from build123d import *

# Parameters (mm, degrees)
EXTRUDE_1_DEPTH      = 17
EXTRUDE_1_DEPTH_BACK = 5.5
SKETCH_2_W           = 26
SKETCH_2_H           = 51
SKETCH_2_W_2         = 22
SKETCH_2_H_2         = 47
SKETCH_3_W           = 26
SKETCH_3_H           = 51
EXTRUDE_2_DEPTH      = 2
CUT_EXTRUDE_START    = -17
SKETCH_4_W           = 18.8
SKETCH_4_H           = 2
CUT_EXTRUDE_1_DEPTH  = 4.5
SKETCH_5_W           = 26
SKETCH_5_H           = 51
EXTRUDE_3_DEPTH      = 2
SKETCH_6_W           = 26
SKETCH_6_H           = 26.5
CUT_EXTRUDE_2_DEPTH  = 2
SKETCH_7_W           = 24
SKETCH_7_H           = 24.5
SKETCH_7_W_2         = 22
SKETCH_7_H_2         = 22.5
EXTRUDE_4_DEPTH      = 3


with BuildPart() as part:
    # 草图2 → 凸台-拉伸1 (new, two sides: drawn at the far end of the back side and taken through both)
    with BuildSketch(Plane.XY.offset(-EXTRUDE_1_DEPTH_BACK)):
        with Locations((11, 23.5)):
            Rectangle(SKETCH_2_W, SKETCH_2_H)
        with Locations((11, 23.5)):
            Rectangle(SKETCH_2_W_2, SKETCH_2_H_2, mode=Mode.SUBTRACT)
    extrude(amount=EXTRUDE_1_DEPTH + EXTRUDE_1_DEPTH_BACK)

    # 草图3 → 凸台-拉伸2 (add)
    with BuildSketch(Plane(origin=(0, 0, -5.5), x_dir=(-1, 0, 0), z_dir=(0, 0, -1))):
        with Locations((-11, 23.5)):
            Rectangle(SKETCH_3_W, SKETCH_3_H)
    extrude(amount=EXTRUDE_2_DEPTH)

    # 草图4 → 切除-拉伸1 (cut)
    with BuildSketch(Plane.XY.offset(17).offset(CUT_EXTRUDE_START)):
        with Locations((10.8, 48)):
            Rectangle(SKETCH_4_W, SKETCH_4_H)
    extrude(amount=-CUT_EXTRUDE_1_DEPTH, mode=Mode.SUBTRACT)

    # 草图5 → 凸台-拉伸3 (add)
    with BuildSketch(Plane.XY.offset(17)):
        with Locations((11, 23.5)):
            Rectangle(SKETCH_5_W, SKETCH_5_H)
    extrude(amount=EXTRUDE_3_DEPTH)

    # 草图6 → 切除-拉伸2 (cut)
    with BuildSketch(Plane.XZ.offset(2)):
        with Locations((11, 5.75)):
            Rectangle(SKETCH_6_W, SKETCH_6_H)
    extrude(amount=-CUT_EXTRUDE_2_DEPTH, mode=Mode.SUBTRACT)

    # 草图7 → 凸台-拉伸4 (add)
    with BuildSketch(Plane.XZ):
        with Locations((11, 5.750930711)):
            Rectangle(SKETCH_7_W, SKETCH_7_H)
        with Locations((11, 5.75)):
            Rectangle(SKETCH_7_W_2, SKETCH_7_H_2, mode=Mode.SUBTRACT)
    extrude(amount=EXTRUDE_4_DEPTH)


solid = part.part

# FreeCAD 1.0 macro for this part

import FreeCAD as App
import Part
import Sketcher
from FreeCAD import Vector
Q = App.Units.Quantity


def add_polygon(sketch, points):
    """Adds a closed chain of lines whose ends are joined by coincident constraints."""
    first, n = sketch.GeometryCount, len(points)
    for a, b in zip(points, points[1:] + points[:1]):
        sketch.addGeometry(Part.LineSegment(App.Vector(*a, 0), App.Vector(*b, 0)), False)
    for i in range(n):
        sketch.addConstraint(Sketcher.Constraint("Coincident", first + i, 2, first + (i + 1) % n, 1))

doc = App.newDocument("Part")
params = doc.addObject("Spreadsheet::Sheet", "Params")
for row, (alias, value) in enumerate([
    ("sketch1_width", "26 mm"),
    ("sketch1_width2", "22 mm"),
    ("sketch1_height", "51 mm"),
    ("sketch1_height2", "47 mm"),
    ("pad1_length", "17 mm"),
    ("pad1_length2", "5.5 mm"),
    ("sketch2_width", "26 mm"),
    ("sketch2_height", "51 mm"),
    ("pad2_length", "2 mm"),
    ("sketch3_height", "2 mm"),
    ("sketch3_width", "18.8 mm"),
    ("pocket1_length", "4.5 mm"),
    ("sketch4_width", "26 mm"),
    ("sketch4_height", "51 mm"),
    ("pad3_length", "2 mm"),
    ("sketch5_width", "26 mm"),
    ("sketch5_height", "26.5 mm"),
    ("pocket2_length", "2 mm"),
    ("sketch6_width", "24 mm"),
    ("sketch6_width2", "22 mm"),
    ("sketch6_height", "24.5 mm"),
    ("sketch6_height2", "22.5 mm"),
    ("pad4_length", "3 mm"),
], start=1):
    params.set(f"A{row}", alias)
    params.set(f"B{row}", "=" + value)
    params.setAlias(f"B{row}", alias)

body = doc.addObject("PartDesign::Body", "Body")

# Sketch on XY plane
sketch1 = body.newObject("Sketcher::SketchObject", "Sketch")
sketch1.AttachmentSupport = (doc.getObject("XY_Plane"), [""])
sketch1.MapMode = "FlatFace"
add_polygon(sketch1, [(-2, 49), (-2, -2), (24, -2), (24, 49)])  # lines 0-3
add_polygon(sketch1, [(22, 0), (0, 0), (0, 47), (22, 47)])  # lines 4-7
sketch1.addConstraint(Sketcher.Constraint("Vertical", 0))
sketch1.addConstraint(Sketcher.Constraint("Horizontal", 1))
sketch1.addConstraint(Sketcher.Constraint("Vertical", 2))
sketch1.addConstraint(Sketcher.Constraint("Horizontal", 3))
sketch1.addConstraint(Sketcher.Constraint("Horizontal", 4))
sketch1.addConstraint(Sketcher.Constraint("Vertical", 5))
sketch1.addConstraint(Sketcher.Constraint("Horizontal", 6))
sketch1.addConstraint(Sketcher.Constraint("Vertical", 7))
sketch1.addConstraint(Sketcher.Constraint("Coincident", 4, 2, -1, 1))
sketch1.addConstraint(Sketcher.Constraint("DistanceX", 1, 1, 1, 2, Q("26 mm")))
sketch1.addConstraint(Sketcher.Constraint("DistanceX", 4, 2, 4, 1, Q("22 mm")))
sketch1.addConstraint(Sketcher.Constraint("DistanceY", 0, 2, 0, 1, Q("51 mm")))
sketch1.addConstraint(Sketcher.Constraint("DistanceY", 5, 1, 5, 2, Q("47 mm")))
sketch1.addConstraint(Sketcher.Constraint("DistanceX", 0, 2, -1, 1, Q("2 mm")))
sketch1.addConstraint(Sketcher.Constraint("DistanceY", 0, 2, -1, 1, Q("2 mm")))
sketch1.setExpression("Constraints[17]", "Params.sketch1_width")
sketch1.setExpression("Constraints[18]", "Params.sketch1_width2")
sketch1.setExpression("Constraints[19]", "Params.sketch1_height")
sketch1.setExpression("Constraints[20]", "Params.sketch1_height2")
pad1 = body.newObject("PartDesign::Pad", "Pad")
pad1.Profile = sketch1
pad1.Type = "TwoLengths"
pad1.setExpression("Length", "Params.pad1_length")
pad1.setExpression("Length2", "Params.pad1_length2")

# Sketch on XY plane
sketch2 = body.newObject("Sketcher::SketchObject", "Sketch001")
sketch2.AttachmentSupport = (doc.getObject("XY_Plane"), [""])
sketch2.MapMode = "FlatFace"
sketch2.AttachmentOffset = App.Placement(Vector(0, 0, -5.5), App.Rotation())
add_polygon(sketch2, [(24, 49), (24, -2), (-2, -2), (-2, 49)])  # lines 0-3
sketch2.addConstraint(Sketcher.Constraint("Vertical", 0))
sketch2.addConstraint(Sketcher.Constraint("Horizontal", 1))
sketch2.addConstraint(Sketcher.Constraint("Vertical", 2))
sketch2.addConstraint(Sketcher.Constraint("Horizontal", 3))
sketch2.addConstraint(Sketcher.Constraint("DistanceX", 1, 2, 1, 1, Q("26 mm")))
sketch2.addConstraint(Sketcher.Constraint("DistanceY", 0, 2, 0, 1, Q("51 mm")))
sketch2.addConstraint(Sketcher.Constraint("DistanceX", -1, 1, 0, 2, Q("24 mm")))
sketch2.addConstraint(Sketcher.Constraint("DistanceY", 0, 2, -1, 1, Q("2 mm")))
sketch2.setExpression("Constraints[8]", "Params.sketch2_width")
sketch2.setExpression("Constraints[9]", "Params.sketch2_height")
pad2 = body.newObject("PartDesign::Pad", "Pad001")
pad2.Profile = sketch2
pad2.setExpression("Length", "Params.pad2_length")
pad2.Reversed = True

# Sketch on XY plane
sketch3 = body.newObject("Sketcher::SketchObject", "Sketch002")
sketch3.AttachmentSupport = (doc.getObject("XY_Plane"), [""])
sketch3.MapMode = "FlatFace"
add_polygon(sketch3, [(1.4, 49), (1.4, 47), (20.2, 47), (20.2, 49)])  # lines 0-3
sketch3.addConstraint(Sketcher.Constraint("Vertical", 0))
sketch3.addConstraint(Sketcher.Constraint("Horizontal", 1))
sketch3.addConstraint(Sketcher.Constraint("Vertical", 2))
sketch3.addConstraint(Sketcher.Constraint("Horizontal", 3))
sketch3.addConstraint(Sketcher.Constraint("DistanceY", 0, 2, 0, 1, Q("2 mm")))
sketch3.addConstraint(Sketcher.Constraint("DistanceX", 1, 1, 1, 2, Q("18.8 mm")))
sketch3.addConstraint(Sketcher.Constraint("DistanceY", -1, 1, 0, 2, Q("47 mm")))
sketch3.addConstraint(Sketcher.Constraint("DistanceX", -1, 1, 0, 2, Q("1.4 mm")))
sketch3.setExpression("Constraints[8]", "Params.sketch3_height")
sketch3.setExpression("Constraints[9]", "Params.sketch3_width")
pocket1 = body.newObject("PartDesign::Pocket", "Pocket")
pocket1.Profile = sketch3
pocket1.setExpression("Length", "Params.pocket1_length")

# Sketch on XY plane
sketch4 = body.newObject("Sketcher::SketchObject", "Sketch003")
sketch4.AttachmentSupport = (doc.getObject("XY_Plane"), [""])
sketch4.MapMode = "FlatFace"
sketch4.AttachmentOffset = App.Placement(Vector(0, 0, 17), App.Rotation())
add_polygon(sketch4, [(-2, 49), (-2, -2), (24, -2), (24, 49)])  # lines 0-3
sketch4.addConstraint(Sketcher.Constraint("Vertical", 0))
sketch4.addConstraint(Sketcher.Constraint("Horizontal", 1))
sketch4.addConstraint(Sketcher.Constraint("Vertical", 2))
sketch4.addConstraint(Sketcher.Constraint("Horizontal", 3))
sketch4.addConstraint(Sketcher.Constraint("DistanceX", 1, 1, 1, 2, Q("26 mm")))
sketch4.addConstraint(Sketcher.Constraint("DistanceY", 0, 2, 0, 1, Q("51 mm")))
sketch4.addConstraint(Sketcher.Constraint("DistanceX", 0, 2, -1, 1, Q("2 mm")))
sketch4.addConstraint(Sketcher.Constraint("DistanceY", 0, 2, -1, 1, Q("2 mm")))
sketch4.setExpression("Constraints[8]", "Params.sketch4_width")
sketch4.setExpression("Constraints[9]", "Params.sketch4_height")
pad3 = body.newObject("PartDesign::Pad", "Pad002")
pad3.Profile = sketch4
pad3.setExpression("Length", "Params.pad3_length")

# Sketch on XZ plane
sketch5 = body.newObject("Sketcher::SketchObject", "Sketch004")
sketch5.AttachmentSupport = (doc.getObject("XZ_Plane"), [""])
sketch5.MapMode = "FlatFace"
sketch5.AttachmentOffset = App.Placement(Vector(0, 0, 2), App.Rotation())
add_polygon(sketch5, [(-2, 19), (-2, -8), (24, -8), (24, 19)])  # lines 0-3
sketch5.addConstraint(Sketcher.Constraint("Vertical", 0))
sketch5.addConstraint(Sketcher.Constraint("Horizontal", 1))
sketch5.addConstraint(Sketcher.Constraint("Vertical", 2))
sketch5.addConstraint(Sketcher.Constraint("Horizontal", 3))
sketch5.addConstraint(Sketcher.Constraint("DistanceX", 1, 1, 1, 2, Q("26 mm")))
sketch5.addConstraint(Sketcher.Constraint("DistanceY", 0, 2, 0, 1, Q("26.5 mm")))
sketch5.addConstraint(Sketcher.Constraint("DistanceX", 0, 2, -1, 1, Q("2 mm")))
sketch5.addConstraint(Sketcher.Constraint("DistanceY", -1, 1, 2, 2, Q("19 mm")))
sketch5.setExpression("Constraints[8]", "Params.sketch5_width")
sketch5.setExpression("Constraints[9]", "Params.sketch5_height")
pocket2 = body.newObject("PartDesign::Pocket", "Pocket001")
pocket2.Profile = sketch5
pocket2.setExpression("Length", "Params.pocket2_length")

# Sketch on XZ plane
sketch6 = body.newObject("Sketcher::SketchObject", "Sketch005")
sketch6.AttachmentSupport = (doc.getObject("XZ_Plane"), [""])
sketch6.MapMode = "FlatFace"
add_polygon(sketch6, [(-1, 18), (-1, -6), (23, -6), (23, 18)])  # lines 0-3
add_polygon(sketch6, [(22, -6), (0, -6), (0, 17), (22, 17)])  # lines 4-7
sketch6.addConstraint(Sketcher.Constraint("Vertical", 0))
sketch6.addConstraint(Sketcher.Constraint("Horizontal", 1))
sketch6.addConstraint(Sketcher.Constraint("Vertical", 2))
sketch6.addConstraint(Sketcher.Constraint("Horizontal", 3))
sketch6.addConstraint(Sketcher.Constraint("Horizontal", 4))
sketch6.addConstraint(Sketcher.Constraint("Vertical", 5))
sketch6.addConstraint(Sketcher.Constraint("Horizontal", 6))
sketch6.addConstraint(Sketcher.Constraint("Vertical", 7))
sketch6.addConstraint(Sketcher.Constraint("PointOnObject", 4, 2, -2))
sketch6.addConstraint(Sketcher.Constraint("DistanceX", 1, 1, 1, 2, Q("24 mm")))
sketch6.addConstraint(Sketcher.Constraint("DistanceX", 4, 2, 4, 1, Q("22 mm")))
sketch6.addConstraint(Sketcher.Constraint("DistanceY", 0, 2, 0, 1, Q("24.5 mm")))
sketch6.addConstraint(Sketcher.Constraint("DistanceY", 5, 1, 5, 2, Q("22.5 mm")))
sketch6.addConstraint(Sketcher.Constraint("DistanceX", 0, 2, -1, 1, Q("1 mm")))
sketch6.addConstraint(Sketcher.Constraint("DistanceY", -1, 1, 5, 2, Q("17 mm")))
sketch6.addConstraint(Sketcher.Constraint("DistanceY", 0, 2, -1, 1, Q("6.499069 mm")))
sketch6.setExpression("Constraints[17]", "Params.sketch6_width")
sketch6.setExpression("Constraints[18]", "Params.sketch6_width2")
sketch6.setExpression("Constraints[19]", "Params.sketch6_height")
sketch6.setExpression("Constraints[20]", "Params.sketch6_height2")
pad4 = body.newObject("PartDesign::Pad", "Pad003")
pad4.Profile = sketch6
pad4.setExpression("Length", "Params.pad4_length")

doc.recompute()
